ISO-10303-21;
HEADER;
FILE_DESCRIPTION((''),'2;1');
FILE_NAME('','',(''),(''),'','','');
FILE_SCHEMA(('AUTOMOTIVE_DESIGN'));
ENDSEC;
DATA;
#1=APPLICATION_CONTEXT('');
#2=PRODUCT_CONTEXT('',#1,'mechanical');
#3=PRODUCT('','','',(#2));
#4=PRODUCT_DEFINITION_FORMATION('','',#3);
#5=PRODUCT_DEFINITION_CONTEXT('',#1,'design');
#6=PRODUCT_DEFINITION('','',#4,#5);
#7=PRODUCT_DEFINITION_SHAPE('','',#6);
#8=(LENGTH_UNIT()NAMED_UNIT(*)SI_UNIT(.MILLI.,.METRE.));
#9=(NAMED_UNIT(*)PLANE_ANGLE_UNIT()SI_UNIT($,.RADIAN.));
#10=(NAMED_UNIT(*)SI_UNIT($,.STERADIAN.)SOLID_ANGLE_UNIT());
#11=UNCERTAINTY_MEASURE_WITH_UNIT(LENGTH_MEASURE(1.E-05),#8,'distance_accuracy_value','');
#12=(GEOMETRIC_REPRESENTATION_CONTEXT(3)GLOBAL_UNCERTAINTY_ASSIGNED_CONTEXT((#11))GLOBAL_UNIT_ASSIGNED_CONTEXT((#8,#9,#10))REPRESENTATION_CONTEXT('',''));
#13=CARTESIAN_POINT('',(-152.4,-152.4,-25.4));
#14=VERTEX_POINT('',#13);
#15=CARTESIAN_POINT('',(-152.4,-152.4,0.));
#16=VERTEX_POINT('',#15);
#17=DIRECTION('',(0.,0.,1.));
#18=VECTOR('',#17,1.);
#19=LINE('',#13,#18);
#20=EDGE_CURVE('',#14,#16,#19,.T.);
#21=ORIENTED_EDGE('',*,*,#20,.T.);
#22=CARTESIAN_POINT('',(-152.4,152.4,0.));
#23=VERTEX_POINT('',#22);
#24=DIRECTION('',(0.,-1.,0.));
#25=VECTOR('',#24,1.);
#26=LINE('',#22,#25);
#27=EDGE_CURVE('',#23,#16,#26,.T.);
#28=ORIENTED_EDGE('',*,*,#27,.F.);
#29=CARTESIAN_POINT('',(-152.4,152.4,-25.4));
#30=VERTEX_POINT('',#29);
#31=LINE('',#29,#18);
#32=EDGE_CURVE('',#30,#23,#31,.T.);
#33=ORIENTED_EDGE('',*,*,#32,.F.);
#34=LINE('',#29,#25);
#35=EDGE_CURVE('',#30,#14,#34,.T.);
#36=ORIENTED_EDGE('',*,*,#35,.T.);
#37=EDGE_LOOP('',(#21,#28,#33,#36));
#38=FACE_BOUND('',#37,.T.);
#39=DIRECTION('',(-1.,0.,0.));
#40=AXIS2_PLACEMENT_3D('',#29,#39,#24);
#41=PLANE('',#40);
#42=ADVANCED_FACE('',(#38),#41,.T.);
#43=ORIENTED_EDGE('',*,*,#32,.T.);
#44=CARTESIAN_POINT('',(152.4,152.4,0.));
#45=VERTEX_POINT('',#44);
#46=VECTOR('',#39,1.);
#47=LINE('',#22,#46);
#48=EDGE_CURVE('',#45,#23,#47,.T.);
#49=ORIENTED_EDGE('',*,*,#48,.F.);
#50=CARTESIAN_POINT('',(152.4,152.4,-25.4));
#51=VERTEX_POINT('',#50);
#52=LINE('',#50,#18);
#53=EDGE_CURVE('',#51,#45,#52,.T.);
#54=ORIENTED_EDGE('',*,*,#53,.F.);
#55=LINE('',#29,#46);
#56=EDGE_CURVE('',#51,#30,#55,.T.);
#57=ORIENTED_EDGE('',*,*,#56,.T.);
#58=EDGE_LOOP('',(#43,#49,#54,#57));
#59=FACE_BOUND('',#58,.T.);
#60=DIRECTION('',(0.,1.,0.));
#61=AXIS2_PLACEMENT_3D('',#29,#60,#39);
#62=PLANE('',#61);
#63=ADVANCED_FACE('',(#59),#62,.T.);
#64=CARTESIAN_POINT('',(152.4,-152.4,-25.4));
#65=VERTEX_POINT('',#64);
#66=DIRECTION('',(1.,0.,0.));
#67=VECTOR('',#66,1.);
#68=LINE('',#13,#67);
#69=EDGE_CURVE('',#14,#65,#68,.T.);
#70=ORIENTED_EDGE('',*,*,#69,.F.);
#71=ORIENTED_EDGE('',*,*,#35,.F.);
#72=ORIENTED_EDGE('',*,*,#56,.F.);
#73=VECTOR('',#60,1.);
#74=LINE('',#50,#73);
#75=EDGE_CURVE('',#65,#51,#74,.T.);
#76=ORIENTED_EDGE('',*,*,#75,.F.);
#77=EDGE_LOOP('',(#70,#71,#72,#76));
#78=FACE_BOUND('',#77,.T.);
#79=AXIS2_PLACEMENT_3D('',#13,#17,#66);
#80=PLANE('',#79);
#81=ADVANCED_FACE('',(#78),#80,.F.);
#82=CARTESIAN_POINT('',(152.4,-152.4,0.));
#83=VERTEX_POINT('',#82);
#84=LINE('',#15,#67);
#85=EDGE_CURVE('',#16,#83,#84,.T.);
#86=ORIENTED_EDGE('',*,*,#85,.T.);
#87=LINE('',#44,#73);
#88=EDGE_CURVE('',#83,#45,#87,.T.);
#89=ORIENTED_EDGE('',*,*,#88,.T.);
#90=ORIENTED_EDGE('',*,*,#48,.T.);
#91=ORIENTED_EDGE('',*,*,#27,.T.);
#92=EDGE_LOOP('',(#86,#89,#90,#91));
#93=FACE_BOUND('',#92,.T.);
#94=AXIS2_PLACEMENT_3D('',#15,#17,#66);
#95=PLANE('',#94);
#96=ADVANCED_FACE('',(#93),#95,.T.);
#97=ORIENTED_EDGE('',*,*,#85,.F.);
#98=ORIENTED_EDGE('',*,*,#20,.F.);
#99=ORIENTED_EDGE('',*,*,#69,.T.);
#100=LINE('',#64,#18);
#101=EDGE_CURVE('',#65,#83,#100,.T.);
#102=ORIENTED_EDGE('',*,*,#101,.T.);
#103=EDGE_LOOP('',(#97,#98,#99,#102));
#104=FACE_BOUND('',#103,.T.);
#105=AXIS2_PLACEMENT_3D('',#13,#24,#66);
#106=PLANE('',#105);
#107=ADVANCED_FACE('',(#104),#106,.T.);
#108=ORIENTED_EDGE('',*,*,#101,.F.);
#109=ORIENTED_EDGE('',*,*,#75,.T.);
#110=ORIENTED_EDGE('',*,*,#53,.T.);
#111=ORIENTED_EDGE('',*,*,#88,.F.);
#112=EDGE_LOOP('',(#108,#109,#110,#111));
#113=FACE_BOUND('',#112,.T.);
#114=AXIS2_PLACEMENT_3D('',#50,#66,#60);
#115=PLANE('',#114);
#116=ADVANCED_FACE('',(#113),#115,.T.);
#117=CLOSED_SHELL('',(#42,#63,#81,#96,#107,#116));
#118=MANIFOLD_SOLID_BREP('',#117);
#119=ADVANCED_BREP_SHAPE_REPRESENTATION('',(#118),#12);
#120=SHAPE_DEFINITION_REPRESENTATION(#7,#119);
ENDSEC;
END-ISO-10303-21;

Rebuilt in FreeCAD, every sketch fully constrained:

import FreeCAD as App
import Part
import Sketcher
Q = App.Units.Quantity


def add_polygon(sketch, points):
    """Adds a closed chain of lines whose ends are joined by coincident constraints."""
    first, n = sketch.GeometryCount, len(points)
    for a, b in zip(points, points[1:] + points[:1]):
        sketch.addGeometry(Part.LineSegment(App.Vector(*a, 0), App.Vector(*b, 0)), False)
    for i in range(n):
        sketch.addConstraint(Sketcher.Constraint("Coincident", first + i, 2, first + (i + 1) % n, 1))

doc = App.newDocument("Part")
body = doc.addObject("PartDesign::Body", "Body")

# Sketch on XY plane
sketch1 = body.newObject("Sketcher::SketchObject", "Sketch")
sketch1.AttachmentSupport = (doc.getObject("XY_Plane"), [""])
sketch1.MapMode = "FlatFace"
add_polygon(sketch1, [(-152, 152), (-152, -152), (152, -152), (152, 152)])  # lines 0-3
sketch1.addConstraint([
    Sketcher.Constraint("Vertical", 0),
    Sketcher.Constraint("Horizontal", 1),
    Sketcher.Constraint("Vertical", 2),
    Sketcher.Constraint("Horizontal", 3),
    Sketcher.Constraint("Symmetric", 0, 2, 2, 2, -1, 1),
    Sketcher.Constraint("Equal", 3, 0),
    Sketcher.Constraint("DistanceX", 1, 1, 1, 2, Q("12 in")),
])
pad1 = body.newObject("PartDesign::Pad", "Pad")
pad1.Profile = sketch1
pad1.Length = Q("1 in")
pad1.Reversed = True

doc.recompute()
